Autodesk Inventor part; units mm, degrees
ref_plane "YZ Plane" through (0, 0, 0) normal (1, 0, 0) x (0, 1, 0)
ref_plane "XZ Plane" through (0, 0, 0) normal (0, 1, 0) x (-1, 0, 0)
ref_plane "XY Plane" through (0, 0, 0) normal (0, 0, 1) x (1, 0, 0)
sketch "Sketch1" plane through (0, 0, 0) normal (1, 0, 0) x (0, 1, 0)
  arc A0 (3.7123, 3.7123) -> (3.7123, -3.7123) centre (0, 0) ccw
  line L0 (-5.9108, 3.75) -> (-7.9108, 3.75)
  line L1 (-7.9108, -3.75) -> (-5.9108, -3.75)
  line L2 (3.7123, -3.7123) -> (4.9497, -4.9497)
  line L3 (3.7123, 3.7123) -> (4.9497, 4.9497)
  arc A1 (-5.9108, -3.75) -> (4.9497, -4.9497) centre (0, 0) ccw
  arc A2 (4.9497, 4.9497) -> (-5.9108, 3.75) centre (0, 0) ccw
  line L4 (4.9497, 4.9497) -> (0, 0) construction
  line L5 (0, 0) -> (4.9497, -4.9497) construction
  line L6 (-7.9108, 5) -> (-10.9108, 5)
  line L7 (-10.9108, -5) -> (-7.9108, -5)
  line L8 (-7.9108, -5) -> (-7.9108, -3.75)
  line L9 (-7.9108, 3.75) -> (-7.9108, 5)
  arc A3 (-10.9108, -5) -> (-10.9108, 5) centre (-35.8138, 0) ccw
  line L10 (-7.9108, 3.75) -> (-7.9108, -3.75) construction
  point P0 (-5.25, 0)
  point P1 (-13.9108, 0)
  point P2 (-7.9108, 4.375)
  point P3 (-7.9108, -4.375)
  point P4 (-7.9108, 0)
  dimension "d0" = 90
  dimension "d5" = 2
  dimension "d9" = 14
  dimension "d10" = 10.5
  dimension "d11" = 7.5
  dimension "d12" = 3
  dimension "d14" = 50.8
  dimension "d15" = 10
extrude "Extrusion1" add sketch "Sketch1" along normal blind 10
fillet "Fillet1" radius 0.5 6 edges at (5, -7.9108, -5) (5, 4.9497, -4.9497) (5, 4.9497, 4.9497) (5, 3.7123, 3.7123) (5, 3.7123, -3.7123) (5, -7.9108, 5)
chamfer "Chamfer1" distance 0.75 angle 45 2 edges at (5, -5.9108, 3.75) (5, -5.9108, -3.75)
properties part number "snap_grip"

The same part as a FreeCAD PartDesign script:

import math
import FreeCAD as App
import Part
import Sketcher

V = App.Vector


def edges_at(feature, points):
    """Names of the edges that pass closest to the given points."""
    edges = feature.Shape.Edges
    near = lambda p: min(range(len(edges)), key=lambda i: edges[i].distToShape(Part.Vertex(*p))[0])
    return sorted({f"Edge{near(p) + 1}" for p in points})

doc = App.newDocument("Part")
body = doc.addObject("PartDesign::Body", "Body")

# Sketch on YZ plane
sketch1 = body.newObject("Sketcher::SketchObject", "Sketch")
sketch1.AttachmentSupport = (doc.getObject("YZ_Plane"), [""])
sketch1.MapMode = "FlatFace"
sketch1.addGeometry([
    Part.ArcOfCircle(Part.Circle(V(0, 0, 0), V(0, 0, 1), 5.2), math.radians(45), math.radians(315)),  # 0
    Part.LineSegment(V(3.7, 3.7, 0), V(4.9, 4.9, 0)),  # 1
    Part.ArcOfCircle(Part.Circle(V(0, 0, 0), V(0, 0, 1), 7), math.radians(45), math.radians(148)),  # 2
    Part.LineSegment(V(-5.9, 3.8, 0), V(-7.9, 3.8, 0)),  # 3
    Part.LineSegment(V(-7.9, 3.8, 0), V(-7.9, 5, 0)),  # 4
    Part.LineSegment(V(-7.9, 5, 0), V(-10.9, 5, 0)),  # 5
    Part.ArcOfCircle(Part.Circle(V(-35.8, 0, 0), V(0, 0, 1), 25.4), math.radians(-11), math.radians(11)),  # 6
    Part.LineSegment(V(-10.9, -5, 0), V(-7.9, -5, 0)),  # 7
    Part.LineSegment(V(-7.9, -5, 0), V(-7.9, -3.8, 0)),  # 8
    Part.LineSegment(V(-7.9, -3.8, 0), V(-5.9, -3.8, 0)),  # 9
    Part.ArcOfCircle(Part.Circle(V(0, 0, 0), V(0, 0, 1), 7), math.radians(-148), math.radians(-45)),  # 10
    Part.LineSegment(V(4.9, -4.9, 0), V(3.7, -3.7, 0)),  # 11
], False)
sketch1.addConstraint([
    Sketcher.Constraint("Coincident", 0, 1, 1, 1),
    Sketcher.Constraint("Coincident", 1, 2, 2, 1),
    Sketcher.Constraint("Coincident", 2, 2, 3, 1),
    Sketcher.Constraint("Coincident", 3, 2, 4, 1),
    Sketcher.Constraint("Coincident", 4, 2, 5, 1),
    Sketcher.Constraint("Coincident", 5, 2, 6, 2),
    Sketcher.Constraint("Coincident", 6, 1, 7, 1),
    Sketcher.Constraint("Coincident", 7, 2, 8, 1),
    Sketcher.Constraint("Coincident", 8, 2, 9, 1),
    Sketcher.Constraint("Coincident", 9, 2, 10, 1),
    Sketcher.Constraint("Coincident", 10, 2, 11, 1),
    Sketcher.Constraint("Coincident", 11, 2, 0, 2),
    Sketcher.Constraint("Horizontal", 3),
    Sketcher.Constraint("Vertical", 4),
    Sketcher.Constraint("Horizontal", 5),
    Sketcher.Constraint("Horizontal", 7),
    Sketcher.Constraint("Vertical", 8),
    Sketcher.Constraint("Horizontal", 9),
    Sketcher.Constraint("Coincident", 0, 3, -1, 1),
    Sketcher.Constraint("Coincident", 2, 3, -1, 1),
    Sketcher.Constraint("Coincident", 10, 3, -1, 1),
    Sketcher.Constraint("Equal", 2, 10),
    Sketcher.Constraint("Symmetric", 5, 2, 6, 1, -1),
    Sketcher.Constraint("Symmetric", 3, 2, 8, 2, -1),
    Sketcher.Constraint("Perpendicular", 1, 11),
    Sketcher.Constraint("Vertical", 1, 2, 10, 2),
    Sketcher.Constraint("Vertical", 0, 1, 11, 2),
    Sketcher.Constraint("Radius", 2, 7.0),
    Sketcher.Constraint("Radius", 6, 25.4),
    Sketcher.Constraint("DistanceX", 3, 2, 3, 1, 2.0),
    Sketcher.Constraint("DistanceX", 5, 2, 5, 1, 3.0),
    Sketcher.Constraint("Radius", 0, 5.25),
    Sketcher.Constraint("DistanceY", 6, 1, 5, 2, 10.0),
    Sketcher.Constraint("DistanceY", 8, 2, 3, 2, 7.5),
    Sketcher.Constraint("DistanceX", 6, 3, 0, 1, 39.526),
])
pad1 = body.newObject("PartDesign::Pad", "Pad")
pad1.Profile = sketch1
pad1.Length = 10
doc.recompute()

fillet = body.newObject("PartDesign::Fillet", "Fillet")
fillet.Base = (pad1, edges_at(pad1, [
    (5, -7.911, -5),
    (5, 4.95, -4.95),
    (5, 4.95, 4.95),
    (5, 3.712, 3.712),
    (5, 3.712, -3.712),
    (5, -7.911, 5),
]))
fillet.Radius = 0.5
doc.recompute()

chamfer = body.newObject("PartDesign::Chamfer", "Chamfer")
chamfer.Base = (fillet, edges_at(fillet, [(5, -5.911, 3.75), (5, -5.911, -3.75)]))
chamfer.Size = 0.75

doc.recompute()
